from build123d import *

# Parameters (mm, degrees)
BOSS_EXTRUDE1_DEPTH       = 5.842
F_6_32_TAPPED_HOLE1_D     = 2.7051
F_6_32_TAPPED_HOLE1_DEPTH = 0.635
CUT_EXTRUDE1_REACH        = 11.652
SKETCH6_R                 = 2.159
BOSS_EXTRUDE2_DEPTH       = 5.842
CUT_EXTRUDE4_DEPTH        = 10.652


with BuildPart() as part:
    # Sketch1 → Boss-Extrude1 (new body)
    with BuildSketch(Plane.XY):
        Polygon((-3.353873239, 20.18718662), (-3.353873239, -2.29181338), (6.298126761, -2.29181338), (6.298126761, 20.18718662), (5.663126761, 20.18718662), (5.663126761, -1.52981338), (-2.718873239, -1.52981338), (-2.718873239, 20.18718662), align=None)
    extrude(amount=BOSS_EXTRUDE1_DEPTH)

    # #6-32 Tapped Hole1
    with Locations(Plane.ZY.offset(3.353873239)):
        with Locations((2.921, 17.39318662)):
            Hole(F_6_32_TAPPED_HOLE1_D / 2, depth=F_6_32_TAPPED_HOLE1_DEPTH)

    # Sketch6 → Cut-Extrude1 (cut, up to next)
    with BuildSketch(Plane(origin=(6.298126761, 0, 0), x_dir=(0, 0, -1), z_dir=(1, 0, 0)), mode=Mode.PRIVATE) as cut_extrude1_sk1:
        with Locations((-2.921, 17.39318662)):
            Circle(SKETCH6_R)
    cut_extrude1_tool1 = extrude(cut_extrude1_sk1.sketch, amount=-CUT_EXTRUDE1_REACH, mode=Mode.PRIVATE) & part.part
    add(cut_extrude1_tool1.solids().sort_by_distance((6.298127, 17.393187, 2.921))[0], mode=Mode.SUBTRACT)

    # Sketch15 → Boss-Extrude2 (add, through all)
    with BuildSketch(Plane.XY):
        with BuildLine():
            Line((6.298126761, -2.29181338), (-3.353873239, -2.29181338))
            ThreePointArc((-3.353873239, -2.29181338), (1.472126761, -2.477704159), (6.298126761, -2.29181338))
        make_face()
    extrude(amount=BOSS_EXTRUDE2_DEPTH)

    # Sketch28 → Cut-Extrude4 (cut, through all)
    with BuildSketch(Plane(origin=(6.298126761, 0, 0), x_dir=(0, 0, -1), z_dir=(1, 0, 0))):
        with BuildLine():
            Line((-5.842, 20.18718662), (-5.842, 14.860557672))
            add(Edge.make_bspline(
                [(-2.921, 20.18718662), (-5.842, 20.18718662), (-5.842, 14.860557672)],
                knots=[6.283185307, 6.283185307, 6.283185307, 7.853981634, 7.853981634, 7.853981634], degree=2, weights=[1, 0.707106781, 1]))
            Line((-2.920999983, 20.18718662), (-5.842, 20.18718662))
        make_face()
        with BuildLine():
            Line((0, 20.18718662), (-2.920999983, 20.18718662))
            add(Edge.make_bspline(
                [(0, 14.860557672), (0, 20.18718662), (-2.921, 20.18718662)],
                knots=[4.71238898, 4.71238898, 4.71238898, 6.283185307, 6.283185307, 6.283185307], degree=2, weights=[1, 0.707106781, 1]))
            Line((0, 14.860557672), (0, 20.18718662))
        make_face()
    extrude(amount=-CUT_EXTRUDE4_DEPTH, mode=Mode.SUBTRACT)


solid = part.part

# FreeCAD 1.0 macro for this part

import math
import FreeCAD as App
import Part
import Sketcher
Q = App.Units.Quantity

doc = App.newDocument("Part")
params = doc.addObject("Spreadsheet::Sheet", "Params")
for row, (alias, value) in enumerate([
    ("sketch1_width", "0.38 in"),
    ("sketch1_width2", "0.33 in"),
    ("sketch1_height", "0.885 in"),
    ("sketch1_height2", "0.855 in"),
    ("pad1_length", "0.23 in"),
    ("hole_diameter", "0.1065 in"),
    ("hole_depth", "0.025 in"),
    ("sketch3_diameter", "0.17 in"),
    ("sketch4_radius", "2.47 in"),
    ("sketch4_width", "0.38 in"),
    ("pad2_length", "0.23 in"),
], start=1):
    params.set(f"A{row}", alias)
    params.set(f"B{row}", "=" + value)
    params.setAlias(f"B{row}", alias)

body = doc.addObject("PartDesign::Body", "Body")

sketch1 = doc.addObject("Sketcher::SketchObject", "Sketch")
body.addObject(sketch1)
sketch1.AttachmentSupport = (doc.XY_Plane, [""])
sketch1.MapMode = "FlatFace"
sketch1.addGeometry(Part.LineSegment(App.Vector(-3.353873, 20.187187, 0), App.Vector(-3.353873, -2.291813, 0)), False)
sketch1.addGeometry(Part.LineSegment(App.Vector(-3.353873, -2.291813, 0), App.Vector(6.298127, -2.291813, 0)), False)
sketch1.addGeometry(Part.LineSegment(App.Vector(6.298127, -2.291813, 0), App.Vector(6.298127, 20.187187, 0)), False)
sketch1.addGeometry(Part.LineSegment(App.Vector(6.298127, 20.187187, 0), App.Vector(5.663127, 20.187187, 0)), False)
sketch1.addGeometry(Part.LineSegment(App.Vector(5.663127, 20.187187, 0), App.Vector(5.663127, -1.529813, 0)), False)
sketch1.addGeometry(Part.LineSegment(App.Vector(5.663127, -1.529813, 0), App.Vector(-2.718873, -1.529813, 0)), False)
sketch1.addGeometry(Part.LineSegment(App.Vector(-2.718873, -1.529813, 0), App.Vector(-2.718873, 20.187187, 0)), False)
sketch1.addGeometry(Part.LineSegment(App.Vector(-2.718873, 20.187187, 0), App.Vector(-3.353873, 20.187187, 0)), False)
sketch1.addConstraint(Sketcher.Constraint("Coincident", 0, 2, 1, 1))
sketch1.addConstraint(Sketcher.Constraint("Coincident", 1, 2, 2, 1))
sketch1.addConstraint(Sketcher.Constraint("Coincident", 2, 2, 3, 1))
sketch1.addConstraint(Sketcher.Constraint("Coincident", 3, 2, 4, 1))
sketch1.addConstraint(Sketcher.Constraint("Coincident", 4, 2, 5, 1))
sketch1.addConstraint(Sketcher.Constraint("Coincident", 5, 2, 6, 1))
sketch1.addConstraint(Sketcher.Constraint("Coincident", 6, 2, 7, 1))
sketch1.addConstraint(Sketcher.Constraint("Coincident", 7, 2, 0, 1))
sketch1.addConstraint(Sketcher.Constraint("Vertical", 0))
sketch1.addConstraint(Sketcher.Constraint("Horizontal", 1))
sketch1.addConstraint(Sketcher.Constraint("Vertical", 2))
sketch1.addConstraint(Sketcher.Constraint("Horizontal", 3))
sketch1.addConstraint(Sketcher.Constraint("Vertical", 4))
sketch1.addConstraint(Sketcher.Constraint("Horizontal", 5))
sketch1.addConstraint(Sketcher.Constraint("Vertical", 6))
sketch1.addConstraint(Sketcher.Constraint("Horizontal", 7))
sketch1.addConstraint(Sketcher.Constraint("Horizontal", 3, 2, 6, 2))
sketch1.addConstraint(Sketcher.Constraint("Equal", 3, 7))
sketch1.addConstraint(Sketcher.Constraint("DistanceX", 1, 1, 1, 2, Q("0.38 in")))
sketch1.addConstraint(Sketcher.Constraint("DistanceX", 5, 2, 5, 1, Q("0.33 in")))
sketch1.addConstraint(Sketcher.Constraint("DistanceY", 0, 2, 0, 1, Q("0.885 in")))
sketch1.addConstraint(Sketcher.Constraint("DistanceY", 4, 2, 4, 1, Q("0.855 in")))
sketch1.addConstraint(Sketcher.Constraint("DistanceX", 0, 2, -1, 1, Q("3.353873 mm")))
sketch1.addConstraint(Sketcher.Constraint("DistanceY", 0, 2, -1, 1, Q("2.291813 mm")))
sketch1.setExpression("Constraints[18]", "Params.sketch1_width")
sketch1.setExpression("Constraints[19]", "Params.sketch1_width2")
sketch1.setExpression("Constraints[20]", "Params.sketch1_height")
sketch1.setExpression("Constraints[21]", "Params.sketch1_height2")
pad1 = doc.addObject("PartDesign::Pad", "Pad")
body.addObject(pad1)
pad1.Profile = sketch1
pad1.setExpression("Length", "Params.pad1_length")

sketch2 = doc.addObject("Sketcher::SketchObject", "Sketch001")
body.addObject(sketch2)
sketch2.AttachmentSupport = (doc.YZ_Plane, [""])
sketch2.MapMode = "FlatFace"
sketch2.AttachmentOffset = App.Placement(App.Vector(0, 0, -3.353873), App.Rotation())
sketch2.addGeometry(Part.Circle(App.Vector(17.393187, 2.921, 0), App.Vector(0, 0, 1), 1.35255), False)
sketch2.addConstraint(Sketcher.Constraint("Diameter", 0, Q("0.1065 in")))
sketch2.addConstraint(Sketcher.Constraint("DistanceY", -1, 1, 0, 3, Q("0.115 in")))
sketch2.addConstraint(Sketcher.Constraint("DistanceX", -1, 1, 0, 3, Q("17.393187 mm")))
doc.recompute()
hole = doc.addObject("PartDesign::Hole", "Hole")
body.addObject(hole)
hole.Profile = sketch2
hole.ThreadType = "None"
hole.setExpression("Diameter", "Params.hole_diameter")
hole.DepthType = "Dimension"
hole.setExpression("Depth", "Params.hole_depth")
hole.DrillPoint = "Flat"
hole.Reversed = True

sketch3 = doc.addObject("Sketcher::SketchObject", "Sketch002")
body.addObject(sketch3)
sketch3.AttachmentSupport = (doc.YZ_Plane, [""])
sketch3.MapMode = "FlatFace"
sketch3.AttachmentOffset = App.Placement(App.Vector(0, 0, 6.298127), App.Rotation())
sketch3.addGeometry(Part.Circle(App.Vector(17.393187, 2.921, 0), App.Vector(0, 0, 1), 2.159), False)
sketch3.addConstraint(Sketcher.Constraint("Diameter", 0, Q("0.17 in")))
sketch3.addConstraint(Sketcher.Constraint("DistanceY", -1, 1, 0, 3, Q("0.115 in")))
sketch3.addConstraint(Sketcher.Constraint("DistanceX", -1, 1, 0, 3, Q("17.393187 mm")))
sketch3.setExpression("Constraints[0]", "Params.sketch3_diameter")
pocket1 = doc.addObject("PartDesign::Pocket", "Pocket")
body.addObject(pocket1)
pocket1.Profile = sketch3
pocket1.Type = "UpToFirst"

sketch4 = doc.addObject("Sketcher::SketchObject", "Sketch003")
body.addObject(sketch4)
sketch4.AttachmentSupport = (doc.XY_Plane, [""])
sketch4.MapMode = "FlatFace"
sketch4.addGeometry(Part.LineSegment(App.Vector(6.298127, -2.291813, 0), App.Vector(-3.353873, -2.291813, 0)), False)
sketch4.addGeometry(Part.ArcOfCircle(Part.Circle(App.Vector(1.472127, 60.260296, 0), App.Vector(0, 0, 1), 62.738), math.radians(-94.411726), math.radians(-85.588274)), False)
sketch4.addConstraint(Sketcher.Constraint("Coincident", 0, 1, 1, 2))
sketch4.addConstraint(Sketcher.Constraint("Coincident", 1, 1, 0, 2))
sketch4.addConstraint(Sketcher.Constraint("Horizontal", 0))
sketch4.addConstraint(Sketcher.Constraint("Radius", 1, Q("2.47 in")))
sketch4.addConstraint(Sketcher.Constraint("DistanceX", 0, 2, 0, 1, Q("0.38 in")))
sketch4.addConstraint(Sketcher.Constraint("DistanceX", -1, 1, 1, 3, Q("1.472127 mm")))
sketch4.addConstraint(Sketcher.Constraint("DistanceY", -1, 1, 1, 3, Q("60.260296 mm")))
sketch4.setExpression("Constraints[3]", "Params.sketch4_radius")
sketch4.setExpression("Constraints[4]", "Params.sketch4_width")
pad2 = doc.addObject("PartDesign::Pad", "Pad001")
body.addObject(pad2)
pad2.Profile = sketch4
pad2.setExpression("Length", "Params.pad2_length")

sketch5 = doc.addObject("Sketcher::SketchObject", "Sketch004")
body.addObject(sketch5)
sketch5.AttachmentSupport = (doc.YZ_Plane, [""])
sketch5.MapMode = "FlatFace"
sketch5.AttachmentOffset = App.Placement(App.Vector(0, 0, 6.298127), App.Rotation())
sketch5.addGeometry(Part.LineSegment(App.Vector(20.187187, 5.842, 0), App.Vector(14.860558, 5.842, 0)), False)
sketch5.addGeometry(Part.BSplineCurve([App.Vector(20.187187, 2.921, 0), App.Vector(20.187187, 5.842, 0), App.Vector(14.860558, 5.842, 0)], [3, 3], [6.283185307, 7.853981634], False, 2, [1, 0.707106781, 1], False), False)
sketch5.addGeometry(Part.LineSegment(App.Vector(20.187187, 2.921, 0), App.Vector(20.187187, 5.842, 0)), False)
sketch5.addGeometry(Part.LineSegment(App.Vector(20.187187, 0, 0), App.Vector(20.187187, 2.921, 0)), False)
sketch5.addGeometry(Part.BSplineCurve([App.Vector(14.860558, 0, 0), App.Vector(20.187187, 0, 0), App.Vector(20.187187, 2.921, 0)], [3, 3], [4.71238898, 6.283185307], False, 2, [1, 0.707106781, 1], False), False)
sketch5.addGeometry(Part.LineSegment(App.Vector(14.860558, 0, 0), App.Vector(20.187187, 0, 0)), False)
sketch5.addConstraint(Sketcher.Constraint("Block", 1))
sketch5.addConstraint(Sketcher.Constraint("Block", 4))
sketch5.addConstraint(Sketcher.Constraint("Coincident", 0, 2, 1, 2))
sketch5.addConstraint(Sketcher.Constraint("Coincident", 1, 1, 2, 1))
sketch5.addConstraint(Sketcher.Constraint("Coincident", 2, 2, 0, 1))
sketch5.addConstraint(Sketcher.Constraint("Coincident", 3, 2, 4, 2))
sketch5.addConstraint(Sketcher.Constraint("Coincident", 4, 1, 5, 1))
sketch5.addConstraint(Sketcher.Constraint("Coincident", 5, 2, 3, 1))
sketch5.addConstraint(Sketcher.Constraint("Horizontal", 0))
sketch5.addConstraint(Sketcher.Constraint("Vertical", 2))
sketch5.addConstraint(Sketcher.Constraint("Vertical", 3))
sketch5.addConstraint(Sketcher.Constraint("Horizontal", 5))
pocket2 = doc.addObject("PartDesign::Pocket", "Pocket001")
body.addObject(pocket2)
pocket2.Profile = sketch5
pocket2.Type = "ThroughAll"

doc.recompute()
